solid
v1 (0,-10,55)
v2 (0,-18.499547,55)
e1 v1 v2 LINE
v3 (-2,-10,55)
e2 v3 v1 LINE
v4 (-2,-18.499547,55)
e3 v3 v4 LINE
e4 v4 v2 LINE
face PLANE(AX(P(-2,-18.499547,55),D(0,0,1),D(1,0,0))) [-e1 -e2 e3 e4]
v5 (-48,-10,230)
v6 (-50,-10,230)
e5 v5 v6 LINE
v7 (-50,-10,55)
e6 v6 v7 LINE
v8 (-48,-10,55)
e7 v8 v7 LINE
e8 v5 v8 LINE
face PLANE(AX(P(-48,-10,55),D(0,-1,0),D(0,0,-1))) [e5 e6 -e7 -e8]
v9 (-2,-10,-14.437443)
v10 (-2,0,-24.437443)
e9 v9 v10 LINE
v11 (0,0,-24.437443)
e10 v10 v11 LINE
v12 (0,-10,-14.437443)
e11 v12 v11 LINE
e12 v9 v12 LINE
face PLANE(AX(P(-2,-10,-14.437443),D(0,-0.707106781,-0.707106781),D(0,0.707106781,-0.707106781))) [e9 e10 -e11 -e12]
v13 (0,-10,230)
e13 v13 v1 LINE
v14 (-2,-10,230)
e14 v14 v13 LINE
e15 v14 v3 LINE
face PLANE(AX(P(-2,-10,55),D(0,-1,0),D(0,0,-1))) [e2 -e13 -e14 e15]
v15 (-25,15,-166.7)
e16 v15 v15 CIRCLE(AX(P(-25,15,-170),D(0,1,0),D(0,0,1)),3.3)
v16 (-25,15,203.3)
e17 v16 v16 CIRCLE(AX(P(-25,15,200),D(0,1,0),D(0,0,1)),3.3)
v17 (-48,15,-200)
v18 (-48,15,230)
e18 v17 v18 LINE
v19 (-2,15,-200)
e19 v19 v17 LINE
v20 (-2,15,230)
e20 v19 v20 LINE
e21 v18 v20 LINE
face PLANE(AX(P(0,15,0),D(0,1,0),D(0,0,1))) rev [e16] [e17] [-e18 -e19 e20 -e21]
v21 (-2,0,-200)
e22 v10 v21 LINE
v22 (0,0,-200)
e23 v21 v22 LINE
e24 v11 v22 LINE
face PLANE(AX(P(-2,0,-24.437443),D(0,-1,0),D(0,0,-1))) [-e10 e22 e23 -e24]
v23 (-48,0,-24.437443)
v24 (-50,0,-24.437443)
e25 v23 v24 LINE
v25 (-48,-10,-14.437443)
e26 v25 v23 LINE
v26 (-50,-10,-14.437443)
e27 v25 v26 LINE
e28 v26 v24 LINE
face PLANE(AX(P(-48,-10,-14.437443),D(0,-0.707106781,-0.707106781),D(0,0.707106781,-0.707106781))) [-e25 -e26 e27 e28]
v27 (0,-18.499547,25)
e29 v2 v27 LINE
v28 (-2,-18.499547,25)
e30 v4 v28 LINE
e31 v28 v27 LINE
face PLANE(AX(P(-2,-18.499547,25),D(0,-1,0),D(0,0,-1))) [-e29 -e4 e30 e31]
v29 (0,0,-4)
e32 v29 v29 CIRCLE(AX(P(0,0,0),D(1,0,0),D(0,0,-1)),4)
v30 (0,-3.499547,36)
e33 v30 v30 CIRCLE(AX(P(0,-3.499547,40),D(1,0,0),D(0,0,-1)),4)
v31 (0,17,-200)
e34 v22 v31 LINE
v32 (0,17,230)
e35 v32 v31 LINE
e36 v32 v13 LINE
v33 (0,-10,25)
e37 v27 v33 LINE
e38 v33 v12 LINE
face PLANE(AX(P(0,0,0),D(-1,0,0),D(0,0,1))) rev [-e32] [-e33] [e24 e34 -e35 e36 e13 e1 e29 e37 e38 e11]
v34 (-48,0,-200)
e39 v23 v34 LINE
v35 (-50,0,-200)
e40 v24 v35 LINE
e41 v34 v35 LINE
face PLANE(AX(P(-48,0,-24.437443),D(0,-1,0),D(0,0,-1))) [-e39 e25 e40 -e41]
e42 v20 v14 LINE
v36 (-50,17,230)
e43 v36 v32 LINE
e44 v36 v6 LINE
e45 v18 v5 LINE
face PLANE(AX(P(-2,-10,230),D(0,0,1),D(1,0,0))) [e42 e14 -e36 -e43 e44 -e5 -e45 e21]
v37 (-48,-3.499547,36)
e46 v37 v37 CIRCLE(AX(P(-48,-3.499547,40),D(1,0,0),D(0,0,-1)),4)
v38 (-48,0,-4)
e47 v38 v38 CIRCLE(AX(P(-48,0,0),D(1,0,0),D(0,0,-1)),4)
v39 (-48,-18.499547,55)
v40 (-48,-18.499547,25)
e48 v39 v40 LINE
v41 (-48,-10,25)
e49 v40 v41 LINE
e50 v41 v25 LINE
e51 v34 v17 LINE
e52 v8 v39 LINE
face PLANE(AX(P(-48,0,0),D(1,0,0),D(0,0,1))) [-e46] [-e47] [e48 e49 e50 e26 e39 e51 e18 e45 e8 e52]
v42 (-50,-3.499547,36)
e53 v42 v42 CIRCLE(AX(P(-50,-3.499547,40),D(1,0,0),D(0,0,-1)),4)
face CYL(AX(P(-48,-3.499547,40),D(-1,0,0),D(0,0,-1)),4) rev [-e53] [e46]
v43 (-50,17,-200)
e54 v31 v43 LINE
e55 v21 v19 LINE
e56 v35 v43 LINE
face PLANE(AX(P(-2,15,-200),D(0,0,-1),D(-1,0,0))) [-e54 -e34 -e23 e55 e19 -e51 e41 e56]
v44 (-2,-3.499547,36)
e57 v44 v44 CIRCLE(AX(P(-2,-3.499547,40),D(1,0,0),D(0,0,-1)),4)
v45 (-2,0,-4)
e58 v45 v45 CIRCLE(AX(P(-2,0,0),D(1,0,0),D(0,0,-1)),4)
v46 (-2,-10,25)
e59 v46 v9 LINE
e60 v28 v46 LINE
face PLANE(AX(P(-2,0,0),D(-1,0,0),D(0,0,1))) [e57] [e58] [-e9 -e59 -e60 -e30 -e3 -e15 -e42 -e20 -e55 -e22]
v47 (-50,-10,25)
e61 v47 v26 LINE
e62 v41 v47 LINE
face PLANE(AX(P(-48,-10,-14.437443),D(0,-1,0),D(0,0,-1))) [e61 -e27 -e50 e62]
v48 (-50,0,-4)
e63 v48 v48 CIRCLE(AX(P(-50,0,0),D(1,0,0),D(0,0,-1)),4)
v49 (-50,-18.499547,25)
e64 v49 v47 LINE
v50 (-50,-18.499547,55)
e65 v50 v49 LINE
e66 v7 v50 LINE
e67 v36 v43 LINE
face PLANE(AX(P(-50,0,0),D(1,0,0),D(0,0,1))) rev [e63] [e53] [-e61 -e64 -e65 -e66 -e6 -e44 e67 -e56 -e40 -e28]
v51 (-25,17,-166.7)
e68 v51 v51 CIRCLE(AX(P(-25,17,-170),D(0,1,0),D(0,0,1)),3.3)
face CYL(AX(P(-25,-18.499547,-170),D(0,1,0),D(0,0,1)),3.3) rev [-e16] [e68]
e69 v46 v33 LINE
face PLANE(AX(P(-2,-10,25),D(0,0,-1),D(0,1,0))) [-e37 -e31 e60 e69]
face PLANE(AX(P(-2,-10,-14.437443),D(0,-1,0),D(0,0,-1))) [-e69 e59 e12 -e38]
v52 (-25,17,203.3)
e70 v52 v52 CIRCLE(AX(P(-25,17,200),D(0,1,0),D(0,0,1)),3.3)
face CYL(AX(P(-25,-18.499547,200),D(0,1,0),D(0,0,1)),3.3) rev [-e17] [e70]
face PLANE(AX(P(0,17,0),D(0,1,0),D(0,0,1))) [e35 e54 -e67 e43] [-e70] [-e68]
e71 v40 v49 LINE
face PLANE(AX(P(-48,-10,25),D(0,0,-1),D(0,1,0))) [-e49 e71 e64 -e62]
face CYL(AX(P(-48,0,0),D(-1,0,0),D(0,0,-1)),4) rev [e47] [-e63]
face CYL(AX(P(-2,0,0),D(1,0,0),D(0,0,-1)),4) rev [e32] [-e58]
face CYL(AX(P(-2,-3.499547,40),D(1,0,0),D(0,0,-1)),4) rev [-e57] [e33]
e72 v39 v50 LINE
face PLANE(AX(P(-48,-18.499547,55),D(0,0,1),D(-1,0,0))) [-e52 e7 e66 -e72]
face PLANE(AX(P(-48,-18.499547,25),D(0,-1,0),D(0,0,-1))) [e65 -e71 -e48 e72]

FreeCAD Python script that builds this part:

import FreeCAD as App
import Part
import Sketcher

V = App.Vector
Q = App.Units.Quantity

doc = App.newDocument("Part")
body = doc.addObject("PartDesign::Body", "Body")

sketch1 = body.newObject("Sketcher::SketchObject", "Sketch")
sketch1.AttachmentSupport = (doc.getObject("YZ_Plane"), [""])
sketch1.MapMode = "FlatFace"
sketch1.addGeometry(Part.LineSegment(V(15, -200, 0), V(15, 230, 0)), False)
sketch1.addGeometry(Part.LineSegment(V(15, 230, 0), V(-10, 230, 0)), False)
sketch1.addGeometry(Part.LineSegment(V(-10, 230, 0), V(-10, 55, 0)), False)
sketch1.addGeometry(Part.LineSegment(V(-10, 55, 0), V(-18.5, 55, 0)), False)
sketch1.addGeometry(Part.LineSegment(V(-18.5, 55, 0), V(-18.5, 25, 0)), False)
sketch1.addGeometry(Part.LineSegment(V(-18.5, 25, 0), V(-10, 25, 0)), False)
sketch1.addGeometry(Part.LineSegment(V(-10, 25, 0), V(-10, -14.4, 0)), False)
sketch1.addGeometry(Part.LineSegment(V(-10, -14.4, 0), V(0, -24.4, 0)), False)
sketch1.addGeometry(Part.LineSegment(V(0, -24.4, 0), V(0, -200, 0)), False)
sketch1.addGeometry(Part.LineSegment(V(0, -200, 0), V(15, -200, 0)), False)
sketch1.addGeometry(Part.Circle(V(0, 0, 0), V(0, 0, 1), 4), False)
sketch1.addGeometry(Part.Circle(V(-3.5, 40, 0), V(0, 0, 1), 4), False)
sketch1.addConstraint(Sketcher.Constraint("Coincident", 0, 2, 1, 1))
sketch1.addConstraint(Sketcher.Constraint("Coincident", 1, 2, 2, 1))
sketch1.addConstraint(Sketcher.Constraint("Coincident", 2, 2, 3, 1))
sketch1.addConstraint(Sketcher.Constraint("Coincident", 3, 2, 4, 1))
sketch1.addConstraint(Sketcher.Constraint("Coincident", 4, 2, 5, 1))
sketch1.addConstraint(Sketcher.Constraint("Coincident", 5, 2, 6, 1))
sketch1.addConstraint(Sketcher.Constraint("Coincident", 6, 2, 7, 1))
sketch1.addConstraint(Sketcher.Constraint("Coincident", 7, 2, 8, 1))
sketch1.addConstraint(Sketcher.Constraint("Coincident", 8, 2, 9, 1))
sketch1.addConstraint(Sketcher.Constraint("Coincident", 9, 2, 0, 1))
sketch1.addConstraint(Sketcher.Constraint("Vertical", 0))
sketch1.addConstraint(Sketcher.Constraint("Horizontal", 1))
sketch1.addConstraint(Sketcher.Constraint("Vertical", 2))
sketch1.addConstraint(Sketcher.Constraint("Horizontal", 3))
sketch1.addConstraint(Sketcher.Constraint("Vertical", 4))
sketch1.addConstraint(Sketcher.Constraint("Horizontal", 5))
sketch1.addConstraint(Sketcher.Constraint("Vertical", 6))
sketch1.addConstraint(Sketcher.Constraint("Vertical", 8))
sketch1.addConstraint(Sketcher.Constraint("Horizontal", 9))
sketch1.addConstraint(Sketcher.Constraint("Coincident", 10, 3, -1, 1))
sketch1.addConstraint(Sketcher.Constraint("Equal", 10, 11))
sketch1.addConstraint(Sketcher.Constraint("PointOnObject", 7, 2, -2))
sketch1.addConstraint(Sketcher.Constraint("Vertical", 2, 2, 5, 2))
sketch1.addConstraint(Sketcher.Constraint("Diameter", 10, 8.0))
sketch1.addConstraint(Sketcher.Constraint("DistanceX", 1, 2, 1, 1, 25.0))
sketch1.addConstraint(Sketcher.Constraint("DistanceX", 9, 1, 9, 2, 15.0))
sketch1.addConstraint(Sketcher.Constraint("DistanceY", 0, 1, 0, 2, 430.0))
sketch1.addConstraint(Sketcher.Constraint("DistanceY", 2, 2, 2, 1, 175.0))
sketch1.addConstraint(Sketcher.Constraint("DistanceY", 4, 2, 4, 1, 30.0))
sketch1.addConstraint(Sketcher.Constraint("Angle", 7, Q("-45 deg")))
sketch1.addConstraint(Sketcher.Constraint("DistanceY", -1, 1, 11, 3, 40.0))
sketch1.addConstraint(Sketcher.Constraint("DistanceY", -1, 1, 0, 2, 230.0))
sketch1.addConstraint(Sketcher.Constraint("DistanceX", 3, 2, 11, 3, 15.0))
sketch1.addConstraint(Sketcher.Constraint("DistanceX", 3, 2, 3, 1, 8.499547))
sketch1.addConstraint(Sketcher.Constraint("DistanceY", 6, 2, 6, 1, 39.437443))
pad1 = body.newObject("PartDesign::Pad", "Pad")
pad1.Profile = sketch1
pad1.Length = 2
pad1.Reversed = True

sketch2 = body.newObject("Sketcher::SketchObject", "Sketch001")
sketch2.AttachmentSupport = (doc.getObject("XZ_Plane"), [""])
sketch2.MapMode = "FlatFace"
sketch2.AttachmentOffset = App.Placement(V(0, 0, -15), App.Rotation())
sketch2.addGeometry(Part.LineSegment(V(0, 230, 0), V(0, -200, 0)), False)
sketch2.addGeometry(Part.LineSegment(V(0, -200, 0), V(-25, -200, 0)), False)
sketch2.addGeometry(Part.LineSegment(V(-25, -200, 0), V(-25, 230, 0)), False)
sketch2.addGeometry(Part.LineSegment(V(-25, 230, 0), V(0, 230, 0)), False)
sketch2.addConstraint(Sketcher.Constraint("Coincident", 0, 2, 1, 1))
sketch2.addConstraint(Sketcher.Constraint("Coincident", 1, 2, 2, 1))
sketch2.addConstraint(Sketcher.Constraint("Coincident", 2, 2, 3, 1))
sketch2.addConstraint(Sketcher.Constraint("Coincident", 3, 2, 0, 1))
sketch2.addConstraint(Sketcher.Constraint("Vertical", 0))
sketch2.addConstraint(Sketcher.Constraint("Horizontal", 1))
sketch2.addConstraint(Sketcher.Constraint("Vertical", 2))
sketch2.addConstraint(Sketcher.Constraint("Horizontal", 3))
sketch2.addConstraint(Sketcher.Constraint("PointOnObject", 0, 2, -2))
sketch2.addConstraint(Sketcher.Constraint("DistanceX", 1, 2, 1, 1, 25.0))
sketch2.addConstraint(Sketcher.Constraint("DistanceY", 0, 2, 0, 1, 430.0))
sketch2.addConstraint(Sketcher.Constraint("DistanceY", 0, 2, -1, 1, 200.0))
pad2 = body.newObject("PartDesign::Pad", "Pad001")
pad2.Profile = sketch2
pad2.Length = 2
pad2.Reversed = True
body2 = doc.addObject("PartDesign::Body", "Body001")
doc.recompute()

body2.BaseFeature = body
doc.recompute()

mirroring = doc.addObject("Part::Mirroring", "Mirroring")
mirroring.Source = body
mirroring.Base = V(-25, 17, 230)
mirroring.Normal = V(1, 0, 0)
body3 = doc.addObject("PartDesign::Body", "Body002")
body3.BaseFeature = mirroring
boolean = body2.newObject("PartDesign::Boolean", "Boolean")
boolean.Type = "Fuse"
boolean.addObjects([body3])
doc.recompute()

sketch3 = body2.newObject("Sketcher::SketchObject", "Sketch002")
sketch3.AttachmentSupport = (doc.getObject("XZ_Plane001"), [""])
sketch3.MapMode = "FlatFace"
sketch3.AttachmentOffset = App.Placement(V(0, 0, -17), App.Rotation())
sketch3.addGeometry(Part.Circle(V(-25, 200, 0), V(0, 0, 1), 3.3), False)
sketch3.addGeometry(Part.Circle(V(-25, -170, 0), V(0, 0, 1), 3.3), False)
sketch3.addConstraint(Sketcher.Constraint("Equal", 0, 1))
sketch3.addConstraint(Sketcher.Constraint("Vertical", 0, 3, 1, 3))
sketch3.addConstraint(Sketcher.Constraint("Diameter", 0, 6.6))
sketch3.addConstraint(Sketcher.Constraint("DistanceX", 0, 3, -1, 1, 25.0))
sketch3.addConstraint(Sketcher.Constraint("DistanceY", -1, 1, 0, 3, 200.0))
sketch3.addConstraint(Sketcher.Constraint("DistanceY", 1, 3, -1, 1, 170.0))
pocket1 = body2.newObject("PartDesign::Pocket", "Pocket")
pocket1.Profile = sketch3
pocket1.Type = "ThroughAll"
pocket1.Midplane = True
mirroring.Visibility = False

doc.recompute()
